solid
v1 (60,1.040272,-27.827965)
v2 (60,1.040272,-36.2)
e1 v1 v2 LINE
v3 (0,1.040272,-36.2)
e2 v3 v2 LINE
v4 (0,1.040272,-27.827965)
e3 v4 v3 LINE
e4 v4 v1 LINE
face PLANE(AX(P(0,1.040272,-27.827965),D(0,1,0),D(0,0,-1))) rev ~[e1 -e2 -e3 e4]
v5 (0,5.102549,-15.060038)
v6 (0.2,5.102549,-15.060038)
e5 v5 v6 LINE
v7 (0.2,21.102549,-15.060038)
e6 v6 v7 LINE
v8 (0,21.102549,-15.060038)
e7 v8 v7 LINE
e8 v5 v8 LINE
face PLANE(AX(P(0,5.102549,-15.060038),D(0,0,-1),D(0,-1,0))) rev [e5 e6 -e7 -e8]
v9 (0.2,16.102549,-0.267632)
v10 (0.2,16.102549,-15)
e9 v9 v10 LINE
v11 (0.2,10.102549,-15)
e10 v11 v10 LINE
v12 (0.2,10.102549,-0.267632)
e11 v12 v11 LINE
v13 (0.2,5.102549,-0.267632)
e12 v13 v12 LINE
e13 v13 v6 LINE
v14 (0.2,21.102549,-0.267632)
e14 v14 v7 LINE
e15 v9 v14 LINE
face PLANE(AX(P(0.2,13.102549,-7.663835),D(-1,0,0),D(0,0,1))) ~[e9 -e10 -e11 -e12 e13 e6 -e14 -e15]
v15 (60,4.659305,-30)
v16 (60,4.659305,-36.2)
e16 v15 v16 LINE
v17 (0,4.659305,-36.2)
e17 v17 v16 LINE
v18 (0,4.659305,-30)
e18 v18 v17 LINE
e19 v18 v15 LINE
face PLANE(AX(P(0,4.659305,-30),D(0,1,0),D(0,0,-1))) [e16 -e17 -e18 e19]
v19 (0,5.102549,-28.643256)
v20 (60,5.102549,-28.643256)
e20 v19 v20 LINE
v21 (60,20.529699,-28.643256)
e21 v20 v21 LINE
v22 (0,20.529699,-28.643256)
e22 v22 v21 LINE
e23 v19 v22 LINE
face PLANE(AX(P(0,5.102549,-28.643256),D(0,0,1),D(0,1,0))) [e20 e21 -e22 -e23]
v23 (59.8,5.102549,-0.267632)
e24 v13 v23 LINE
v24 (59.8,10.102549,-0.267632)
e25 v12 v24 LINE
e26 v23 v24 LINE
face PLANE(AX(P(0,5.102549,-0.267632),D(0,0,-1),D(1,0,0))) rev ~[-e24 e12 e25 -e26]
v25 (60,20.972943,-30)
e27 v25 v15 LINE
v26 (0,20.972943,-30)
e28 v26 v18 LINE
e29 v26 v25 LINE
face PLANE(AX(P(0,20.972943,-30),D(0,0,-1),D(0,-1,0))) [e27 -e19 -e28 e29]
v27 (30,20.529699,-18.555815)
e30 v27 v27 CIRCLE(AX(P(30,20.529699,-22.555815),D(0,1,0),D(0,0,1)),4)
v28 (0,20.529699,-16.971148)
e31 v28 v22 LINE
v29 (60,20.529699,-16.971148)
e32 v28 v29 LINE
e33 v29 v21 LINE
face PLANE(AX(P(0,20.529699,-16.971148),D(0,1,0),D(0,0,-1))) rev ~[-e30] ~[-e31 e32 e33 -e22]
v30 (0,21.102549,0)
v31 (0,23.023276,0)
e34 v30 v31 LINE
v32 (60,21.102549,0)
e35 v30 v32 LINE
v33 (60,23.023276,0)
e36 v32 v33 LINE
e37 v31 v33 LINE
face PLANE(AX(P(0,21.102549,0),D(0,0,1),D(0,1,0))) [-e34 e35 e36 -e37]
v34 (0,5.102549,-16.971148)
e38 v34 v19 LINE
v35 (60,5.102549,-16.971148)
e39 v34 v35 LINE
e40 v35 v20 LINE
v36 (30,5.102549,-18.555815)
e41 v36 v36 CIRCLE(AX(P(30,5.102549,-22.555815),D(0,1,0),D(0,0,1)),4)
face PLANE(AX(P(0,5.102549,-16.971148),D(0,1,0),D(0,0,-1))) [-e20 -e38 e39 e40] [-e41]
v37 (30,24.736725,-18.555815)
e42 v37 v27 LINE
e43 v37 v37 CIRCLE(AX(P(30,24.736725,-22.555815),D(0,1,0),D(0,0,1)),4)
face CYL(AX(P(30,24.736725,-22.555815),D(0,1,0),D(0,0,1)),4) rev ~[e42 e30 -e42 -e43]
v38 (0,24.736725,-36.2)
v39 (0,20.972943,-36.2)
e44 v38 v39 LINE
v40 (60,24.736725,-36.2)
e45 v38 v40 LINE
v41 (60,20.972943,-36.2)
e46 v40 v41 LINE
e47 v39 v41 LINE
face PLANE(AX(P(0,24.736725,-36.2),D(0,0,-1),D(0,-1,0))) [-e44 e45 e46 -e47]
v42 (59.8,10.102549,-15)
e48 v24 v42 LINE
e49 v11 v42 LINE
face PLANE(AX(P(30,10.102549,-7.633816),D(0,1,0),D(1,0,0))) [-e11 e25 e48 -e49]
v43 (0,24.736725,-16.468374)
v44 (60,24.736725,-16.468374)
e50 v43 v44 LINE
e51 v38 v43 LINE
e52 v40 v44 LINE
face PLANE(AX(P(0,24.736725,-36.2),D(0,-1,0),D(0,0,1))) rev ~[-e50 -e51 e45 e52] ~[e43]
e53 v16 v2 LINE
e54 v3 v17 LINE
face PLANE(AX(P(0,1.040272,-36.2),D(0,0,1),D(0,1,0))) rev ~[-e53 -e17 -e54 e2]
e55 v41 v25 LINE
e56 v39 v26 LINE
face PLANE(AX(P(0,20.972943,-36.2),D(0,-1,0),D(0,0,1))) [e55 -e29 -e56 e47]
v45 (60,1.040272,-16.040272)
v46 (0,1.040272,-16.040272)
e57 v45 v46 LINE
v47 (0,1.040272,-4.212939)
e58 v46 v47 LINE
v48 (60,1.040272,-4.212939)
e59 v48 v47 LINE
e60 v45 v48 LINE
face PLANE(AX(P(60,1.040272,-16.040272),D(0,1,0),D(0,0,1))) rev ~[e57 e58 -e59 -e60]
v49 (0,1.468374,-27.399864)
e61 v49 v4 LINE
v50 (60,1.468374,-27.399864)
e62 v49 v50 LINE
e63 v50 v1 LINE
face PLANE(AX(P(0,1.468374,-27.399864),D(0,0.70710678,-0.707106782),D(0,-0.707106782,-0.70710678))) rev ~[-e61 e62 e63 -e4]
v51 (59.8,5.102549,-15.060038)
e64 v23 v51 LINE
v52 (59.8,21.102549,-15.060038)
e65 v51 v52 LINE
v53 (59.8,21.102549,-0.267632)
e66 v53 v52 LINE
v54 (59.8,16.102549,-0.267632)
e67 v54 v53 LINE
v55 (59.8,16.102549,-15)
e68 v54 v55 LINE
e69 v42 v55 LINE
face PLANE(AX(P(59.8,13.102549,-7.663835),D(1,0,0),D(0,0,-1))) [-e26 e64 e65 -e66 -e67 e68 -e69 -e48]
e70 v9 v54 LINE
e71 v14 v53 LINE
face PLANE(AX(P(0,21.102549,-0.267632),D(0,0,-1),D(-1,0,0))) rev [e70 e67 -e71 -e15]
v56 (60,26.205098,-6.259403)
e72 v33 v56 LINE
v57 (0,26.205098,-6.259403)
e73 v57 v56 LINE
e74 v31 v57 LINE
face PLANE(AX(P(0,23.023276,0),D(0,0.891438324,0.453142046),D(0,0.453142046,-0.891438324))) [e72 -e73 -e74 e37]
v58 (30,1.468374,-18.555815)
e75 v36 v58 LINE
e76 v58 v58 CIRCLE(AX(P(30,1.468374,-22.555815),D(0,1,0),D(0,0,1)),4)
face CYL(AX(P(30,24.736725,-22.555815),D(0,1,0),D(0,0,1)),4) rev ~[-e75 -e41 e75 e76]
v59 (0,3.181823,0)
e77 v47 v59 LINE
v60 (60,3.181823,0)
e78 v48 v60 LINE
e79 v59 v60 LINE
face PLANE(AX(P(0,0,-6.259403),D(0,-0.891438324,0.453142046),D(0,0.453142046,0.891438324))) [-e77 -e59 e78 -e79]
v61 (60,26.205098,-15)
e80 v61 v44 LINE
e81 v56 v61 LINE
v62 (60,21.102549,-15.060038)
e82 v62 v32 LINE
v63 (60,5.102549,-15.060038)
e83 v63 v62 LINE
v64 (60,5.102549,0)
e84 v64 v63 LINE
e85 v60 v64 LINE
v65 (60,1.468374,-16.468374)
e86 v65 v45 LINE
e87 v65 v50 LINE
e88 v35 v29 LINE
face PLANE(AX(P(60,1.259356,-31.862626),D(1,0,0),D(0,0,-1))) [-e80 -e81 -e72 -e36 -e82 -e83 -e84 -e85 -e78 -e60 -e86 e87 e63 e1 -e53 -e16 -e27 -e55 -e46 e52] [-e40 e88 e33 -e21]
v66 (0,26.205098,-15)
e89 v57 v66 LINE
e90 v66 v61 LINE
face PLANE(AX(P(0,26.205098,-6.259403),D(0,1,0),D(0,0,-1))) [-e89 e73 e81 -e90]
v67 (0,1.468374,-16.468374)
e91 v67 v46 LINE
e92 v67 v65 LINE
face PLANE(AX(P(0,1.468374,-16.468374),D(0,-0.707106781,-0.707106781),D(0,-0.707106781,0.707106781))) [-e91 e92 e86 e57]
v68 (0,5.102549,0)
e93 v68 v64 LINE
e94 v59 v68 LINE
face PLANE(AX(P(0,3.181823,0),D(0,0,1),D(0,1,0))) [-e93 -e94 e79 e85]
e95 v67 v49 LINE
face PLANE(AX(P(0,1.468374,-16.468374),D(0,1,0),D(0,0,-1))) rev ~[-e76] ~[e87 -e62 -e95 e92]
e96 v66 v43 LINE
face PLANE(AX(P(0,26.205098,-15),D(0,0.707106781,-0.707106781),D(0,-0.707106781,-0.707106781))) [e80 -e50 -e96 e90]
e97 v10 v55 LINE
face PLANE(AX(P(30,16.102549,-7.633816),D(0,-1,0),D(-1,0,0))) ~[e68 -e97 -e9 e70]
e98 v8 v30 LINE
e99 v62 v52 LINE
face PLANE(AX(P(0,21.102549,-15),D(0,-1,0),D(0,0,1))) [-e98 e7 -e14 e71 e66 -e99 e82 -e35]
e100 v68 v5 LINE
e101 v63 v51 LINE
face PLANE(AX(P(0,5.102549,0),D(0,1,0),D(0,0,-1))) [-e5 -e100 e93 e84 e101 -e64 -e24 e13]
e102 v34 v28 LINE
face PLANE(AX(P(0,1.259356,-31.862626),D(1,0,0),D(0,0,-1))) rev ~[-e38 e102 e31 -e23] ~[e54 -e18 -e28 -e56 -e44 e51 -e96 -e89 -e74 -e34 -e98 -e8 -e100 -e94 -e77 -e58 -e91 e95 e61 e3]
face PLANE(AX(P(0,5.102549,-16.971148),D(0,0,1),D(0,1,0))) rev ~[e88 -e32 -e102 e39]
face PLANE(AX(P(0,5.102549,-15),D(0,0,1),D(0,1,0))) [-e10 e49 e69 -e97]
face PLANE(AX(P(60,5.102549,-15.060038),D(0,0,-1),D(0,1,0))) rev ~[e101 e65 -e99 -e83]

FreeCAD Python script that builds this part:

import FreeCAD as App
import Part
import Sketcher
from FreeCAD import Vector
Q = App.Units.Quantity


def add_polygon(sketch, points):
    """Adds a closed chain of lines whose ends are joined by coincident constraints."""
    first, n = sketch.GeometryCount, len(points)
    for a, b in zip(points, points[1:] + points[:1]):
        sketch.addGeometry(Part.LineSegment(App.Vector(*a, 0), App.Vector(*b, 0)), False)
    for i in range(n):
        sketch.addConstraint(Sketcher.Constraint("Coincident", first + i, 2, first + (i + 1) % n, 1))

doc = App.newDocument("Part")
params = doc.addObject("Spreadsheet::Sheet", "Params")
for row, (alias, value) in enumerate([
    ("sketch1_width", "16 mm"),
    ("sketch1_height", "15 mm"),
    ("sketch1_height2", "6.2 mm"),
    ("pad1_length", "60 mm"),
    ("sketch2_diameter", "8 mm"),
    ("pocket1_length", "60 mm"),
    ("sketch3_width", "60 mm"),
    ("pad2_length", "5 mm"),
    ("sketch4_width", "16 mm"),
    ("pocket2_length", "0.2 mm"),
    ("pocket3_length", "60 mm"),
    ("pad3_length", "60 mm"),
], start=1):
    params.set(f"A{row}", alias)
    params.set(f"B{row}", "=" + value)
    params.setAlias(f"B{row}", alias)

body = doc.addObject("PartDesign::Body", "Body")

sketch1 = body.newObject("Sketcher::SketchObject", "Sketch")
sketch1.AttachmentSupport = (doc.getObject("YZ_Plane"), [""])
sketch1.MapMode = "FlatFace"
add_polygon(sketch1, [(26.205098, -6.259403), (23.023276, 0), (21.102549, 0), (21.102549, -15), (5.102549, -15), (5.102549, 0), (3.181823, 0), (0, -6.259403), (0, -15), (1.468374, -16.468374), (1.468374, -36.2), (4.659305, -36.2), (4.659305, -30), (20.972943, -30), (20.972943, -36.2), (24.736725, -36.2), (24.736725, -16.468374), (26.205098, -15)])
add_polygon(sketch1, [(5.102549, -16.971148), (20.529699, -16.971148), (20.529699, -28.643256), (5.102549, -28.643256)])
sketch1.addConstraint(Sketcher.Constraint("Horizontal", 1))
sketch1.addConstraint(Sketcher.Constraint("Vertical", 2))
sketch1.addConstraint(Sketcher.Constraint("Horizontal", 3))
sketch1.addConstraint(Sketcher.Constraint("Vertical", 4))
sketch1.addConstraint(Sketcher.Constraint("Horizontal", 5))
sketch1.addConstraint(Sketcher.Constraint("Vertical", 7))
sketch1.addConstraint(Sketcher.Constraint("Vertical", 9))
sketch1.addConstraint(Sketcher.Constraint("Horizontal", 10))
sketch1.addConstraint(Sketcher.Constraint("Vertical", 11))
sketch1.addConstraint(Sketcher.Constraint("Horizontal", 12))
sketch1.addConstraint(Sketcher.Constraint("Vertical", 13))
sketch1.addConstraint(Sketcher.Constraint("Horizontal", 14))
sketch1.addConstraint(Sketcher.Constraint("Vertical", 15))
sketch1.addConstraint(Sketcher.Constraint("Vertical", 17))
sketch1.addConstraint(Sketcher.Constraint("Horizontal", 18))
sketch1.addConstraint(Sketcher.Constraint("Vertical", 19))
sketch1.addConstraint(Sketcher.Constraint("Horizontal", 20))
sketch1.addConstraint(Sketcher.Constraint("Vertical", 21))
sketch1.addConstraint(Sketcher.Constraint("PointOnObject", 0, 2, -1))
sketch1.addConstraint(Sketcher.Constraint("PointOnObject", 4, 2, -1))
sketch1.addConstraint(Sketcher.Constraint("PointOnObject", 6, 2, -2))
sketch1.addConstraint(Sketcher.Constraint("Perpendicular", 8, 16))
sketch1.addConstraint(Sketcher.Constraint("Horizontal", 3, 2, 7, 2))
sketch1.addConstraint(Sketcher.Constraint("Horizontal", 10, 2, 13, 2))
sketch1.addConstraint(Sketcher.Constraint("Horizontal", 8, 2, 15, 2))
sketch1.addConstraint(Sketcher.Constraint("Horizontal", 7, 2, 16, 2))
sketch1.addConstraint(Sketcher.Constraint("Horizontal", 6, 2, 17, 2))
sketch1.addConstraint(Sketcher.Constraint("Vertical", 4, 2, 20, 2))
sketch1.addConstraint(Sketcher.Constraint("Equal", 1, 5))
sketch1.addConstraint(Sketcher.Constraint("Equal", 0, 6))
sketch1.addConstraint(Sketcher.Constraint("Equal", 8, 16))
sketch1.addConstraint(Sketcher.Constraint("DistanceX", 3, 2, 3, 1, Q("16 mm")))
sketch1.addConstraint(Sketcher.Constraint("DistanceY", 2, 2, 2, 1, Q("15 mm")))
sketch1.addConstraint(Sketcher.Constraint("DistanceY", 11, 1, 11, 2, Q("6.2 mm")))
sketch1.addConstraint(Sketcher.Constraint("DistanceY", 11, 2, -1, 1, Q("30 mm")))
sketch1.addConstraint(Sketcher.Constraint("DistanceX", 10, 1, 10, 2, Q("3.190931 mm")))
sketch1.addConstraint(Sketcher.Constraint("DistanceX", 12, 1, 12, 2, Q("16.313639 mm")))
sketch1.addConstraint(Sketcher.Constraint("DistanceX", 14, 1, 14, 2, Q("3.763782 mm")))
sketch1.addConstraint(Sketcher.Constraint("DistanceX", 18, 1, 18, 2, Q("15.427149 mm")))
sketch1.addConstraint(Sketcher.Constraint("DistanceY", 19, 2, 19, 1, Q("11.672108 mm")))
sketch1.addConstraint(Sketcher.Constraint("DistanceX", -1, 1, 16, 2, Q("26.205098 mm")))
sketch1.addConstraint(Sketcher.Constraint("Distance", 0, Q("7.021689 mm")))
sketch1.addConstraint(Sketcher.Constraint("DistanceX", 1, 2, 1, 1, Q("1.920727 mm")))
sketch1.addConstraint(Sketcher.Constraint("DistanceY", 18, 2, -1, 1, Q("16.971148 mm")))
sketch1.setExpression("Constraints[53]", "Params.sketch1_width")
sketch1.setExpression("Constraints[54]", "Params.sketch1_height")
sketch1.setExpression("Constraints[55]", "Params.sketch1_height2")
pad1 = body.newObject("PartDesign::Pad", "Pad")
pad1.Profile = sketch1
pad1.setExpression("Length", "Params.pad1_length")

sketch2 = body.newObject("Sketcher::SketchObject", "Sketch001")
sketch2.AttachmentSupport = (doc.getObject("XZ_Plane"), [""])
sketch2.MapMode = "FlatFace"
sketch2.AttachmentOffset = App.Placement(Vector(0, 0, -24.736725), App.Rotation())
sketch2.addGeometry(Part.Circle(Vector(30, -22.555815, 0), Vector(0, 0, 1), 4), False)
sketch2.addConstraint(Sketcher.Constraint("Diameter", 0, Q("8 mm")))
sketch2.addConstraint(Sketcher.Constraint("DistanceX", -1, 1, 0, 3, Q("30 mm")))
sketch2.addConstraint(Sketcher.Constraint("DistanceY", 0, 3, -1, 1, Q("22.555815 mm")))
sketch2.setExpression("Constraints[0]", "Params.sketch2_diameter")
pocket1 = body.newObject("PartDesign::Pocket", "Pocket")
pocket1.Profile = sketch2
pocket1.setExpression("Length", "Params.pocket1_length")
pocket1.Reversed = True

sketch3 = body.newObject("Sketcher::SketchObject", "Sketch002")
sketch3.AttachmentSupport = (doc.getObject("XZ_Plane"), [""])
sketch3.MapMode = "FlatFace"
sketch3.AttachmentOffset = App.Placement(Vector(0, 0, -5.102549), App.Rotation())
add_polygon(sketch3, [(0, -15), (0, -0.267632), (60, -0.267632), (60, -15)])
sketch3.addConstraint(Sketcher.Constraint("Vertical", 0))
sketch3.addConstraint(Sketcher.Constraint("Horizontal", 1))
sketch3.addConstraint(Sketcher.Constraint("Vertical", 2))
sketch3.addConstraint(Sketcher.Constraint("Horizontal", 3))
sketch3.addConstraint(Sketcher.Constraint("PointOnObject", 0, 2, -2))
sketch3.addConstraint(Sketcher.Constraint("DistanceX", 1, 1, 1, 2, Q("60 mm")))
sketch3.addConstraint(Sketcher.Constraint("DistanceY", 2, 2, -1, 1, Q("15 mm")))
sketch3.addConstraint(Sketcher.Constraint("DistanceY", 0, 1, 0, 2, Q("14.732368 mm")))
sketch3.setExpression("Constraints[9]", "Params.sketch3_width")
pad2 = body.newObject("PartDesign::Pad", "Pad001")
pad2.Profile = sketch3
pad2.setExpression("Length", "Params.pad2_length")
pad2.Reversed = True
doc.recompute()

datumplane = body.newObject("PartDesign::Plane", "DatumPlane")
datumplane.AttachmentSupport = (doc.getObject("XZ_Plane"), [""])
datumplane.MapMode = "FlatFace"
datumplane.AttachmentOffset = App.Placement(Vector(0, 0, -13.102549), App.Rotation())
mirrored = body.newObject("PartDesign::Mirrored", "Mirrored")
mirrored.Originals = [pad2]
mirrored.MirrorPlane = (datumplane, [""])
body.Tip = mirrored

sketch4 = body.newObject("Sketcher::SketchObject", "Sketch003")
sketch4.AttachmentSupport = (doc.getObject("YZ_Plane"), [""])
sketch4.MapMode = "FlatFace"
sketch4.AttachmentOffset = App.Placement(Vector(0, 0, 60), App.Rotation())
add_polygon(sketch4, [(21.102549, -0.267632), (5.102549, -0.267632), (5.102549, -15.060038), (21.102549, -15.060038)])
sketch4.addConstraint(Sketcher.Constraint("Horizontal", 0))
sketch4.addConstraint(Sketcher.Constraint("Vertical", 1))
sketch4.addConstraint(Sketcher.Constraint("Horizontal", 2))
sketch4.addConstraint(Sketcher.Constraint("Vertical", 3))
sketch4.addConstraint(Sketcher.Constraint("DistanceX", 0, 2, 0, 1, Q("16 mm")))
sketch4.addConstraint(Sketcher.Constraint("DistanceY", 1, 2, 1, 1, Q("14.792406 mm")))
sketch4.addConstraint(Sketcher.Constraint("DistanceX", -1, 1, 0, 2, Q("5.102549 mm")))
sketch4.addConstraint(Sketcher.Constraint("DistanceY", 0, 2, -1, 1, Q("0.267632 mm")))
sketch4.setExpression("Constraints[8]", "Params.sketch4_width")
pocket2 = body.newObject("PartDesign::Pocket", "Pocket001")
pocket2.Profile = sketch4
pocket2.setExpression("Length", "Params.pocket2_length")
doc.recompute()

datumplane2 = body.newObject("PartDesign::Plane", "DatumPlane001")
datumplane2.AttachmentSupport = (doc.getObject("YZ_Plane"), [""])
datumplane2.MapMode = "FlatFace"
datumplane2.AttachmentOffset = App.Placement(Vector(0, 0, 30), App.Rotation())
mirrored2 = body.newObject("PartDesign::Mirrored", "Mirrored001")
mirrored2.Originals = [pocket2]
mirrored2.MirrorPlane = (datumplane2, [""])
body.Tip = mirrored2

sketch5 = body.newObject("Sketcher::SketchObject", "Sketch004")
sketch5.AttachmentSupport = (doc.getObject("YZ_Plane"), [""])
sketch5.MapMode = "FlatFace"
sketch5.AttachmentOffset = App.Placement(Vector(0, 0, 60), App.Rotation())
add_polygon(sketch5, [(1.040272, -16.040272), (1.040272, -4.212939), (-1.896541, -2.720078), (-1.896541, -18.763264)])
sketch5.addConstraint(Sketcher.Constraint("Vertical", 0))
sketch5.addConstraint(Sketcher.Constraint("Vertical", 2))
sketch5.addConstraint(Sketcher.Constraint("Distance", 3, Q("4.004942 mm")))
sketch5.addConstraint(Sketcher.Constraint("DistanceY", 0, 1, 0, 2, Q("11.827333 mm")))
sketch5.addConstraint(Sketcher.Constraint("DistanceY", 2, 2, 2, 1, Q("16.043186 mm")))
sketch5.addConstraint(Sketcher.Constraint("DistanceY", 0, 2, -1, 1, Q("4.212939 mm")))
sketch5.addConstraint(Sketcher.Constraint("DistanceX", 1, 2, -1, 1, Q("1.896541 mm")))
sketch5.addConstraint(Sketcher.Constraint("DistanceY", 1, 2, -1, 1, Q("2.720078 mm")))
pocket3 = body.newObject("PartDesign::Pocket", "Pocket002")
pocket3.Profile = sketch5
pocket3.setExpression("Length", "Params.pocket3_length")

sketch6 = body.newObject("Sketcher::SketchObject", "Sketch005")
sketch6.AttachmentSupport = (doc.getObject("YZ_Plane"), [""])
sketch6.MapMode = "FlatFace"
add_polygon(sketch6, [(1.040272, -36.2), (1.040272, -27.827965), (1.468374, -27.399864), (1.468374, -36.2)])
sketch6.addConstraint(Sketcher.Constraint("Vertical", 0))
sketch6.addConstraint(Sketcher.Constraint("Vertical", 2))
sketch6.addConstraint(Sketcher.Constraint("Horizontal", 3))
sketch6.addConstraint(Sketcher.Constraint("Angle", 1, Q("45 deg")))
sketch6.addConstraint(Sketcher.Constraint("DistanceY", 2, 2, -1, 1, Q("36.2 mm")))
sketch6.addConstraint(Sketcher.Constraint("DistanceX", 3, 2, 3, 1, Q("0.428101 mm")))
sketch6.addConstraint(Sketcher.Constraint("DistanceY", 0, 1, 0, 2, Q("8.372035 mm")))
sketch6.addConstraint(Sketcher.Constraint("DistanceX", -1, 1, 0, 2, Q("1.040272 mm")))
pad3 = body.newObject("PartDesign::Pad", "Pad002")
pad3.Profile = sketch6
pad3.setExpression("Length", "Params.pad3_length")

doc.recompute()
